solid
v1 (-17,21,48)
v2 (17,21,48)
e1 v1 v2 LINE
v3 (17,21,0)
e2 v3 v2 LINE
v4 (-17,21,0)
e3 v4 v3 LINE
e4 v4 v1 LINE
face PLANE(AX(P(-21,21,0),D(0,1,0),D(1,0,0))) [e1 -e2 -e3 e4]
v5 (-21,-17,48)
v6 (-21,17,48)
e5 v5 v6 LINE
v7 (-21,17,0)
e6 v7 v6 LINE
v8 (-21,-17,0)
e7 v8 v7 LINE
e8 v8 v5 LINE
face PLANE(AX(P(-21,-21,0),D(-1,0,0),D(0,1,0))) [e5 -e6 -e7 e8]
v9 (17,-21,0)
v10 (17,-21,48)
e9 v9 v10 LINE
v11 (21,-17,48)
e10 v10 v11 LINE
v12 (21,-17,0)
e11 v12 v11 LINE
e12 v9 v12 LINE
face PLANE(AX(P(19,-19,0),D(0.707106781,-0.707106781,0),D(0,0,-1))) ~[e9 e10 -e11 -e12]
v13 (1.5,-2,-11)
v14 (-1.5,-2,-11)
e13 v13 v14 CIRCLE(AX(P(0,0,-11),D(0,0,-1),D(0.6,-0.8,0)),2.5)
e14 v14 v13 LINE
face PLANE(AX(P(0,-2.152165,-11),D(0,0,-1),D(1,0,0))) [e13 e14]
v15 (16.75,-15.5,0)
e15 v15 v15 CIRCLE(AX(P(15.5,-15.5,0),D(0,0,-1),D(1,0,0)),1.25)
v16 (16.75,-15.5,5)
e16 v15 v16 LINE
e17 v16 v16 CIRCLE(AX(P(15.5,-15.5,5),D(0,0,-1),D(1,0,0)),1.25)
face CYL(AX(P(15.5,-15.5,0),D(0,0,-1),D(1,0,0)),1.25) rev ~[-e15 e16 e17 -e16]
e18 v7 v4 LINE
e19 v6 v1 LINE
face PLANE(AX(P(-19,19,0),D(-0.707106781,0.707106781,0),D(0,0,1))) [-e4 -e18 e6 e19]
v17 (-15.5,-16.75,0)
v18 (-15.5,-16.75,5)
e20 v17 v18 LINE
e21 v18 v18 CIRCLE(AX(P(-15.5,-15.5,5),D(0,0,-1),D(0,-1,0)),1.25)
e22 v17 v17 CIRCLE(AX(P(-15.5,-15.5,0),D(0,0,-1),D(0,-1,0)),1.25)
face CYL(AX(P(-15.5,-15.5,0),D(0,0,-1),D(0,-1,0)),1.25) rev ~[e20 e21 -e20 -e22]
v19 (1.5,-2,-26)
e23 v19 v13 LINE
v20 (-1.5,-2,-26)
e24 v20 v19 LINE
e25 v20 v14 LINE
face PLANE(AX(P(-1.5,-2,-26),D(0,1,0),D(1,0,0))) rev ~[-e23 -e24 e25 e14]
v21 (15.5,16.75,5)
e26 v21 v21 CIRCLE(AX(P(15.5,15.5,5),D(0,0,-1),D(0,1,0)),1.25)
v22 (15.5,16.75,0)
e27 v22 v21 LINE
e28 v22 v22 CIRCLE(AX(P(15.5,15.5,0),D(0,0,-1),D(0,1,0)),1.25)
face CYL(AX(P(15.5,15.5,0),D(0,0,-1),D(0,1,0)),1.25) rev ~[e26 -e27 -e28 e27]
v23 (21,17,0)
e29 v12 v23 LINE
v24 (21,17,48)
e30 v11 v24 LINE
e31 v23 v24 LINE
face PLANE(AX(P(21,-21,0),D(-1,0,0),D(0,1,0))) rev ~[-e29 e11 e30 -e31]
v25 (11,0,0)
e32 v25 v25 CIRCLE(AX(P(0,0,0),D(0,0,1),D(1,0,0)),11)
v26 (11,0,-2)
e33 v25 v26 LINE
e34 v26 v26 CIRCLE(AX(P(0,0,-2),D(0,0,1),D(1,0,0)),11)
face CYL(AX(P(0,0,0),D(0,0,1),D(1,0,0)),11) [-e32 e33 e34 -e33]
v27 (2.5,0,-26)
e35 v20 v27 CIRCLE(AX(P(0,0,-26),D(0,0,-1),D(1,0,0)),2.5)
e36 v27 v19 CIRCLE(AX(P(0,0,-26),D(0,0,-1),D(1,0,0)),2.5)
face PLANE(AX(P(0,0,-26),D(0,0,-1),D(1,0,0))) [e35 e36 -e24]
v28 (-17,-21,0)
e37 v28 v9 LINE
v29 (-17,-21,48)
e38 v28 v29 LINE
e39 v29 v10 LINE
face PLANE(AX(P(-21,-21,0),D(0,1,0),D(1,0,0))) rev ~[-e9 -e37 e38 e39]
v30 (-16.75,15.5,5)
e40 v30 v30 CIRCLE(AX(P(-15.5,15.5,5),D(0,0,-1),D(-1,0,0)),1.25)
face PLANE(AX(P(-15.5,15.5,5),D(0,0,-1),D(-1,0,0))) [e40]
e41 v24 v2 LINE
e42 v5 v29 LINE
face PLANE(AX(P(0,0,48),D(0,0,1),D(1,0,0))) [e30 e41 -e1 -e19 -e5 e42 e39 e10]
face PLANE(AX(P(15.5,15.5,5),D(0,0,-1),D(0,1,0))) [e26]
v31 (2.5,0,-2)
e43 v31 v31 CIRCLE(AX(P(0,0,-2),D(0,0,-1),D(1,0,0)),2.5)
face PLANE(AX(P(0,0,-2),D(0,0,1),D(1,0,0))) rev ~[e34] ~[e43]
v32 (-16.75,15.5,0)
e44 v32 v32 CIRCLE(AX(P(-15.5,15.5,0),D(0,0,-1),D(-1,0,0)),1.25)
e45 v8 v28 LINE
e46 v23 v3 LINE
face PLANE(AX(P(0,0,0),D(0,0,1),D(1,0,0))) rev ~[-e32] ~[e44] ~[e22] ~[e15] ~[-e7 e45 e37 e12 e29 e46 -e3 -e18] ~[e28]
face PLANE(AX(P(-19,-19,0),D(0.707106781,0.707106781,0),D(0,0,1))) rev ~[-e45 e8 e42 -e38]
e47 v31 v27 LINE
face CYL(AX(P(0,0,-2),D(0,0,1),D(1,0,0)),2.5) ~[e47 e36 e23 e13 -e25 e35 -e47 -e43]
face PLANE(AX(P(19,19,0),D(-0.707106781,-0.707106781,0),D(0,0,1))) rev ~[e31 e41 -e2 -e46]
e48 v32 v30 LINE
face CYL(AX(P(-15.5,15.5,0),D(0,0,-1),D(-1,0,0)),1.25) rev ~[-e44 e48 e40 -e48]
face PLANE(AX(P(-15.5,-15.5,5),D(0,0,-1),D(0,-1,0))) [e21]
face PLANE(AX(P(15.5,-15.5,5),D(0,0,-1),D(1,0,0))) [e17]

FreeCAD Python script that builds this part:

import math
import FreeCAD as App
import Part
import Sketcher

V = App.Vector
Q = App.Units.Quantity


def edges_at(feature, points):
    """Names of the edges that pass closest to the given points."""
    edges = feature.Shape.Edges
    near = lambda p: min(range(len(edges)), key=lambda i: edges[i].distToShape(Part.Vertex(*p))[0])
    return sorted({f"Edge{near(p) + 1}" for p in points})

doc = App.newDocument("Part")
params = doc.addObject("Spreadsheet::Sheet", "Params")
for row, (alias, value) in enumerate([
    ("sketch1_width", "42 mm"),
    ("pad1_length", "48 mm"),
    ("chamfer_size", "4 mm"),
    ("sketch2_diameter", "22 mm"),
    ("pad2_length", "2 mm"),
    ("sketch3_diameter", "5 mm"),
    ("pad3_length", "24 mm"),
    ("sketch4_radius", "2.5 mm"),
    ("sketch4_width", "3 mm"),
    ("pocket1_length", "15 mm"),
    ("sketch5_diameter", "2.5 mm"),
    ("pocket2_length", "5 mm"),
], start=1):
    params.set(f"A{row}", alias)
    params.set(f"B{row}", "=" + value)
    params.setAlias(f"B{row}", alias)

body = doc.addObject("PartDesign::Body", "Body")

# Sketch on XY plane
sketch1 = body.newObject("Sketcher::SketchObject", "Sketch")
sketch1.AttachmentSupport = (doc.getObject("XY_Plane"), [""])
sketch1.MapMode = "FlatFace"
sketch1.addGeometry([
    Part.LineSegment(V(-21, 21, 0), V(-21, -21, 0)),
    Part.LineSegment(V(-21, -21, 0), V(21, -21, 0)),
    Part.LineSegment(V(21, -21, 0), V(21, 21, 0)),
    Part.LineSegment(V(21, 21, 0), V(-21, 21, 0)),
], False)
sketch1.addConstraint([
    Sketcher.Constraint("Coincident", 0, 2, 1, 1),
    Sketcher.Constraint("Coincident", 1, 2, 2, 1),
    Sketcher.Constraint("Coincident", 2, 2, 3, 1),
    Sketcher.Constraint("Coincident", 3, 2, 0, 1),
    Sketcher.Constraint("Vertical", 0),
    Sketcher.Constraint("Horizontal", 1),
    Sketcher.Constraint("Vertical", 2),
    Sketcher.Constraint("Horizontal", 3),
    Sketcher.Constraint("Symmetric", 0, 2, 2, 2, -1, 1),
    Sketcher.Constraint("Equal", 3, 0),
    Sketcher.Constraint("DistanceX", 1, 1, 1, 2, Q("42 mm")),
])
sketch1.setExpression("Constraints[10]", "Params.sketch1_width")
pad1 = body.newObject("PartDesign::Pad", "Pad")
pad1.Profile = sketch1
pad1.setExpression("Length", "Params.pad1_length")
doc.recompute()

chamfer = body.newObject("PartDesign::Chamfer", "Chamfer")
chamfer.Base = (pad1, edges_at(pad1, [
    (21, -21, 24),
    (-21, -21, 24),
    (21, 21, 24),
    (-21, 21, 24),
]))
chamfer.setExpression("Size", "Params.chamfer_size")

# Sketch on XY plane
sketch2 = body.newObject("Sketcher::SketchObject", "Sketch001")
sketch2.AttachmentSupport = (doc.getObject("XY_Plane"), [""])
sketch2.MapMode = "FlatFace"
sketch2.addGeometry(Part.Circle(V(0, 0, 0), V(0, 0, 1), 11), False)
sketch2.addConstraint([
    Sketcher.Constraint("Coincident", 0, 3, -1, 1),
    Sketcher.Constraint("Diameter", 0, Q("22 mm")),
])
sketch2.setExpression("Constraints[1]", "Params.sketch2_diameter")
pad2 = body.newObject("PartDesign::Pad", "Pad001")
pad2.Profile = sketch2
pad2.setExpression("Length", "Params.pad2_length")
pad2.Reversed = True

# Sketch on XY plane
sketch3 = body.newObject("Sketcher::SketchObject", "Sketch002")
sketch3.AttachmentSupport = (doc.getObject("XY_Plane"), [""])
sketch3.MapMode = "FlatFace"
sketch3.AttachmentOffset = App.Placement(V(0, 0, -2), App.Rotation())
sketch3.addGeometry(Part.Circle(V(0, 0, 0), V(0, 0, 1), 2.5), False)
sketch3.addConstraint([
    Sketcher.Constraint("Coincident", 0, 3, -1, 1),
    Sketcher.Constraint("Diameter", 0, Q("5 mm")),
])
sketch3.setExpression("Constraints[1]", "Params.sketch3_diameter")
pad3 = body.newObject("PartDesign::Pad", "Pad002")
pad3.Profile = sketch3
pad3.setExpression("Length", "Params.pad3_length")
pad3.Reversed = True

# Sketch on XY plane
sketch4 = body.newObject("Sketcher::SketchObject", "Sketch003")
sketch4.AttachmentSupport = (doc.getObject("XY_Plane"), [""])
sketch4.MapMode = "FlatFace"
sketch4.AttachmentOffset = App.Placement(V(0, 0, -26), App.Rotation())
sketch4.addGeometry([
    Part.ArcOfCircle(Part.Circle(V(0, 0, 0), V(0, 0, 1), 2.5), math.radians(-127), math.radians(-53)),
    Part.LineSegment(V(-1.5, -2, 0), V(1.5, -2, 0)),
], False)
sketch4.addConstraint([
    Sketcher.Constraint("Coincident", 0, 1, 1, 1),
    Sketcher.Constraint("Coincident", 1, 2, 0, 2),
    Sketcher.Constraint("Horizontal", 1),
    Sketcher.Constraint("Coincident", 0, 3, -1, 1),
    Sketcher.Constraint("Radius", 0, Q("2.5 mm")),
    Sketcher.Constraint("DistanceX", 1, 1, 1, 2, Q("3 mm")),
])
sketch4.setExpression("Constraints[4]", "Params.sketch4_radius")
sketch4.setExpression("Constraints[5]", "Params.sketch4_width")
pocket1 = body.newObject("PartDesign::Pocket", "Pocket")
pocket1.Profile = sketch4
pocket1.setExpression("Length", "Params.pocket1_length")
pocket1.Reversed = True

# Sketch on XY plane
sketch5 = body.newObject("Sketcher::SketchObject", "Sketch004")
sketch5.AttachmentSupport = (doc.getObject("XY_Plane"), [""])
sketch5.MapMode = "FlatFace"
sketch5.addGeometry(Part.Circle(V(15.5, -15.5, 0), V(0, 0, 1), 1.2), False)
sketch5.addConstraint([
    Sketcher.Constraint("Diameter", 0, Q("2.5 mm")),
    Sketcher.Constraint("DistanceX", -1, 1, 0, 3, Q("15.5 mm")),
    Sketcher.Constraint("DistanceY", 0, 3, -1, 1, Q("15.5 mm")),
])
sketch5.setExpression("Constraints[0]", "Params.sketch5_diameter")
pocket2 = body.newObject("PartDesign::Pocket", "Pocket001")
pocket2.Profile = sketch5
pocket2.setExpression("Length", "Params.pocket2_length")
pocket2.Reversed = True
doc.recompute()

polarpattern = body.newObject("PartDesign::PolarPattern", "PolarPattern")
polarpattern.Originals = [pocket2]
polarpattern.Axis = (doc.getObject("Z_Axis"), [""])
polarpattern.Angle = 360
polarpattern.Occurrences = 4
body.Tip = polarpattern

doc.recompute()
